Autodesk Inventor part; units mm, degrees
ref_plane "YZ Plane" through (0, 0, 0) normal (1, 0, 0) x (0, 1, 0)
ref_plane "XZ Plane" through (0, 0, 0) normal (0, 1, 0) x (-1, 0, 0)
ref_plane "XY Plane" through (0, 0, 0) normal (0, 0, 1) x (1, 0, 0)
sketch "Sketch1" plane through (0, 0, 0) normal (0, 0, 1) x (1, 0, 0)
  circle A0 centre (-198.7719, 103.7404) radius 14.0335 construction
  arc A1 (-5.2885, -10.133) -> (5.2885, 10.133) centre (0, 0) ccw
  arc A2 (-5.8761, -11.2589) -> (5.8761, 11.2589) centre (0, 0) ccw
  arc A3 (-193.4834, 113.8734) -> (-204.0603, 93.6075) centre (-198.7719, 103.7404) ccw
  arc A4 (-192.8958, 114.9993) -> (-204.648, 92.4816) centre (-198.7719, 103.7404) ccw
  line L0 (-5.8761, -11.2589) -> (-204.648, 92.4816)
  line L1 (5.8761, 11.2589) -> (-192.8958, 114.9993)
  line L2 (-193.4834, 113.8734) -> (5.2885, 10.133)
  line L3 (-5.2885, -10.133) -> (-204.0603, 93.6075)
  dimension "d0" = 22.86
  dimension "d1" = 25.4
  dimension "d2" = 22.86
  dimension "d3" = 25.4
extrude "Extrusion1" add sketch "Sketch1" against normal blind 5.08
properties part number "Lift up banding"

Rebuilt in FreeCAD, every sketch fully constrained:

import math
import FreeCAD as App
import Part
import Sketcher
from FreeCAD import Vector
Q = App.Units.Quantity

doc = App.newDocument("Part")
body = doc.addObject("PartDesign::Body", "Body")

sketch1 = doc.addObject("Sketcher::SketchObject", "Sketch")
body.addObject(sketch1)
sketch1.AttachmentSupport = (doc.XY_Plane, [""])
sketch1.MapMode = "FlatFace"
sketch1.addGeometry(Part.LineSegment(Vector(-205, 92, 0), Vector(-6, -11, 0)), False)
sketch1.addGeometry(Part.ArcOfCircle(Part.Circle(Vector(0, 0, 0), Vector(0, 0, 1), 13), math.radians(-118), math.radians(62)), False)
sketch1.addGeometry(Part.LineSegment(Vector(6, 11, 0), Vector(-193, 115, 0)), False)
sketch1.addGeometry(Part.ArcOfCircle(Part.Circle(Vector(-199, 104, 0), Vector(0, 0, 1), 13), math.radians(62), math.radians(242)), False)
sketch1.addGeometry(Part.ArcOfCircle(Part.Circle(Vector(0, 0, 0), Vector(0, 0, 1), 11), math.radians(-118), math.radians(62)), False)
sketch1.addGeometry(Part.LineSegment(Vector(-5, -10, 0), Vector(-204, 94, 0)), False)
sketch1.addGeometry(Part.ArcOfCircle(Part.Circle(Vector(-199, 104, 0), Vector(0, 0, 1), 11), math.radians(62), math.radians(242)), False)
sketch1.addGeometry(Part.LineSegment(Vector(-193, 114, 0), Vector(5, 10, 0)), False)
sketch1.addConstraint(Sketcher.Constraint("Tangent", 0, 2, 1, 1))
sketch1.addConstraint(Sketcher.Constraint("Tangent", 1, 2, 2, 1))
sketch1.addConstraint(Sketcher.Constraint("Tangent", 2, 2, 3, 1))
sketch1.addConstraint(Sketcher.Constraint("Tangent", 3, 2, 0, 1))
sketch1.addConstraint(Sketcher.Constraint("Tangent", 4, 1, 5, 1))
sketch1.addConstraint(Sketcher.Constraint("Tangent", 5, 2, 6, 2))
sketch1.addConstraint(Sketcher.Constraint("Tangent", 6, 1, 7, 1))
sketch1.addConstraint(Sketcher.Constraint("Tangent", 7, 2, 4, 2))
sketch1.addConstraint(Sketcher.Constraint("Coincident", 1, 3, -1, 1))
sketch1.addConstraint(Sketcher.Constraint("Coincident", 4, 3, -1, 1))
sketch1.addConstraint(Sketcher.Constraint("Coincident", 6, 3, 3, 3))
sketch1.addConstraint(Sketcher.Constraint("Equal", 1, 3))
sketch1.addConstraint(Sketcher.Constraint("Equal", 4, 6))
sketch1.addConstraint(Sketcher.Constraint("Radius", 1, Q("0.5 in")))
sketch1.addConstraint(Sketcher.Constraint("Radius", 4, Q("0.45 in")))
sketch1.addConstraint(Sketcher.Constraint("Angle", 0, Q("-27.5604 deg")))
sketch1.addConstraint(Sketcher.Constraint("DistanceX", 3, 2, -1, 1, Q("8.057 in")))
pad1 = doc.addObject("PartDesign::Pad", "Pad")
body.addObject(pad1)
pad1.Profile = sketch1
pad1.Length = Q("0.2 in")
pad1.Reversed = True

doc.recompute()
